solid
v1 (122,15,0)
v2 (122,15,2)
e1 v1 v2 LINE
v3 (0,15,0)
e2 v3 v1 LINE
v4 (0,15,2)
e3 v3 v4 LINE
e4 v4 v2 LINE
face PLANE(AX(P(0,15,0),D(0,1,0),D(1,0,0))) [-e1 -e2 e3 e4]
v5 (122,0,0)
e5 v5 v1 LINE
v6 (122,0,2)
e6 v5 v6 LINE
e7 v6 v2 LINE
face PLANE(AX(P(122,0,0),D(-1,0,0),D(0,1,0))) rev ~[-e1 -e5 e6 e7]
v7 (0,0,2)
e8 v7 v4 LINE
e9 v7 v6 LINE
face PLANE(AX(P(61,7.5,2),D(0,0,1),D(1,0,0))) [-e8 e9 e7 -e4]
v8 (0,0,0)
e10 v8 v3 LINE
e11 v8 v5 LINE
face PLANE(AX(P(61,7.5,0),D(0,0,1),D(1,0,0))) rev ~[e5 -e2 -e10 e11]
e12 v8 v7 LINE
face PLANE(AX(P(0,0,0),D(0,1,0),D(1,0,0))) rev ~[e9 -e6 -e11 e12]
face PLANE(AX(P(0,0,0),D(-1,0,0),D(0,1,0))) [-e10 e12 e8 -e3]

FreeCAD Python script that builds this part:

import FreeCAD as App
import Part
import Sketcher
from FreeCAD import Vector
Q = App.Units.Quantity

doc = App.newDocument("Part")
body = doc.addObject("PartDesign::Body", "Body")

sketch1 = body.newObject("Sketcher::SketchObject", "Sketch")
sketch1.AttachmentSupport = (doc.getObject("XY_Plane"), [""])
sketch1.MapMode = "FlatFace"
sketch1.addGeometry([
    Part.LineSegment(Vector(0, 15, 0), Vector(0, 0, 0)),
    Part.LineSegment(Vector(0, 0, 0), Vector(122, 0, 0)),
    Part.LineSegment(Vector(122, 0, 0), Vector(122, 15, 0)),
    Part.LineSegment(Vector(122, 15, 0), Vector(0, 15, 0)),
], False)
sketch1.addConstraint([
    Sketcher.Constraint("Coincident", 0, 2, 1, 1),
    Sketcher.Constraint("Coincident", 1, 2, 2, 1),
    Sketcher.Constraint("Coincident", 2, 2, 3, 1),
    Sketcher.Constraint("Coincident", 3, 2, 0, 1),
    Sketcher.Constraint("Vertical", 0),
    Sketcher.Constraint("Horizontal", 1),
    Sketcher.Constraint("Vertical", 2),
    Sketcher.Constraint("Horizontal", 3),
    Sketcher.Constraint("Coincident", 0, 2, -1, 1),
    Sketcher.Constraint("DistanceX", 1, 1, 1, 2, Q("122 mm")),
    Sketcher.Constraint("DistanceY", 0, 2, 0, 1, Q("15 mm")),
])
pad1 = body.newObject("PartDesign::Pad", "Pad")
pad1.Profile = sketch1
pad1.Length = 2

doc.recompute()
